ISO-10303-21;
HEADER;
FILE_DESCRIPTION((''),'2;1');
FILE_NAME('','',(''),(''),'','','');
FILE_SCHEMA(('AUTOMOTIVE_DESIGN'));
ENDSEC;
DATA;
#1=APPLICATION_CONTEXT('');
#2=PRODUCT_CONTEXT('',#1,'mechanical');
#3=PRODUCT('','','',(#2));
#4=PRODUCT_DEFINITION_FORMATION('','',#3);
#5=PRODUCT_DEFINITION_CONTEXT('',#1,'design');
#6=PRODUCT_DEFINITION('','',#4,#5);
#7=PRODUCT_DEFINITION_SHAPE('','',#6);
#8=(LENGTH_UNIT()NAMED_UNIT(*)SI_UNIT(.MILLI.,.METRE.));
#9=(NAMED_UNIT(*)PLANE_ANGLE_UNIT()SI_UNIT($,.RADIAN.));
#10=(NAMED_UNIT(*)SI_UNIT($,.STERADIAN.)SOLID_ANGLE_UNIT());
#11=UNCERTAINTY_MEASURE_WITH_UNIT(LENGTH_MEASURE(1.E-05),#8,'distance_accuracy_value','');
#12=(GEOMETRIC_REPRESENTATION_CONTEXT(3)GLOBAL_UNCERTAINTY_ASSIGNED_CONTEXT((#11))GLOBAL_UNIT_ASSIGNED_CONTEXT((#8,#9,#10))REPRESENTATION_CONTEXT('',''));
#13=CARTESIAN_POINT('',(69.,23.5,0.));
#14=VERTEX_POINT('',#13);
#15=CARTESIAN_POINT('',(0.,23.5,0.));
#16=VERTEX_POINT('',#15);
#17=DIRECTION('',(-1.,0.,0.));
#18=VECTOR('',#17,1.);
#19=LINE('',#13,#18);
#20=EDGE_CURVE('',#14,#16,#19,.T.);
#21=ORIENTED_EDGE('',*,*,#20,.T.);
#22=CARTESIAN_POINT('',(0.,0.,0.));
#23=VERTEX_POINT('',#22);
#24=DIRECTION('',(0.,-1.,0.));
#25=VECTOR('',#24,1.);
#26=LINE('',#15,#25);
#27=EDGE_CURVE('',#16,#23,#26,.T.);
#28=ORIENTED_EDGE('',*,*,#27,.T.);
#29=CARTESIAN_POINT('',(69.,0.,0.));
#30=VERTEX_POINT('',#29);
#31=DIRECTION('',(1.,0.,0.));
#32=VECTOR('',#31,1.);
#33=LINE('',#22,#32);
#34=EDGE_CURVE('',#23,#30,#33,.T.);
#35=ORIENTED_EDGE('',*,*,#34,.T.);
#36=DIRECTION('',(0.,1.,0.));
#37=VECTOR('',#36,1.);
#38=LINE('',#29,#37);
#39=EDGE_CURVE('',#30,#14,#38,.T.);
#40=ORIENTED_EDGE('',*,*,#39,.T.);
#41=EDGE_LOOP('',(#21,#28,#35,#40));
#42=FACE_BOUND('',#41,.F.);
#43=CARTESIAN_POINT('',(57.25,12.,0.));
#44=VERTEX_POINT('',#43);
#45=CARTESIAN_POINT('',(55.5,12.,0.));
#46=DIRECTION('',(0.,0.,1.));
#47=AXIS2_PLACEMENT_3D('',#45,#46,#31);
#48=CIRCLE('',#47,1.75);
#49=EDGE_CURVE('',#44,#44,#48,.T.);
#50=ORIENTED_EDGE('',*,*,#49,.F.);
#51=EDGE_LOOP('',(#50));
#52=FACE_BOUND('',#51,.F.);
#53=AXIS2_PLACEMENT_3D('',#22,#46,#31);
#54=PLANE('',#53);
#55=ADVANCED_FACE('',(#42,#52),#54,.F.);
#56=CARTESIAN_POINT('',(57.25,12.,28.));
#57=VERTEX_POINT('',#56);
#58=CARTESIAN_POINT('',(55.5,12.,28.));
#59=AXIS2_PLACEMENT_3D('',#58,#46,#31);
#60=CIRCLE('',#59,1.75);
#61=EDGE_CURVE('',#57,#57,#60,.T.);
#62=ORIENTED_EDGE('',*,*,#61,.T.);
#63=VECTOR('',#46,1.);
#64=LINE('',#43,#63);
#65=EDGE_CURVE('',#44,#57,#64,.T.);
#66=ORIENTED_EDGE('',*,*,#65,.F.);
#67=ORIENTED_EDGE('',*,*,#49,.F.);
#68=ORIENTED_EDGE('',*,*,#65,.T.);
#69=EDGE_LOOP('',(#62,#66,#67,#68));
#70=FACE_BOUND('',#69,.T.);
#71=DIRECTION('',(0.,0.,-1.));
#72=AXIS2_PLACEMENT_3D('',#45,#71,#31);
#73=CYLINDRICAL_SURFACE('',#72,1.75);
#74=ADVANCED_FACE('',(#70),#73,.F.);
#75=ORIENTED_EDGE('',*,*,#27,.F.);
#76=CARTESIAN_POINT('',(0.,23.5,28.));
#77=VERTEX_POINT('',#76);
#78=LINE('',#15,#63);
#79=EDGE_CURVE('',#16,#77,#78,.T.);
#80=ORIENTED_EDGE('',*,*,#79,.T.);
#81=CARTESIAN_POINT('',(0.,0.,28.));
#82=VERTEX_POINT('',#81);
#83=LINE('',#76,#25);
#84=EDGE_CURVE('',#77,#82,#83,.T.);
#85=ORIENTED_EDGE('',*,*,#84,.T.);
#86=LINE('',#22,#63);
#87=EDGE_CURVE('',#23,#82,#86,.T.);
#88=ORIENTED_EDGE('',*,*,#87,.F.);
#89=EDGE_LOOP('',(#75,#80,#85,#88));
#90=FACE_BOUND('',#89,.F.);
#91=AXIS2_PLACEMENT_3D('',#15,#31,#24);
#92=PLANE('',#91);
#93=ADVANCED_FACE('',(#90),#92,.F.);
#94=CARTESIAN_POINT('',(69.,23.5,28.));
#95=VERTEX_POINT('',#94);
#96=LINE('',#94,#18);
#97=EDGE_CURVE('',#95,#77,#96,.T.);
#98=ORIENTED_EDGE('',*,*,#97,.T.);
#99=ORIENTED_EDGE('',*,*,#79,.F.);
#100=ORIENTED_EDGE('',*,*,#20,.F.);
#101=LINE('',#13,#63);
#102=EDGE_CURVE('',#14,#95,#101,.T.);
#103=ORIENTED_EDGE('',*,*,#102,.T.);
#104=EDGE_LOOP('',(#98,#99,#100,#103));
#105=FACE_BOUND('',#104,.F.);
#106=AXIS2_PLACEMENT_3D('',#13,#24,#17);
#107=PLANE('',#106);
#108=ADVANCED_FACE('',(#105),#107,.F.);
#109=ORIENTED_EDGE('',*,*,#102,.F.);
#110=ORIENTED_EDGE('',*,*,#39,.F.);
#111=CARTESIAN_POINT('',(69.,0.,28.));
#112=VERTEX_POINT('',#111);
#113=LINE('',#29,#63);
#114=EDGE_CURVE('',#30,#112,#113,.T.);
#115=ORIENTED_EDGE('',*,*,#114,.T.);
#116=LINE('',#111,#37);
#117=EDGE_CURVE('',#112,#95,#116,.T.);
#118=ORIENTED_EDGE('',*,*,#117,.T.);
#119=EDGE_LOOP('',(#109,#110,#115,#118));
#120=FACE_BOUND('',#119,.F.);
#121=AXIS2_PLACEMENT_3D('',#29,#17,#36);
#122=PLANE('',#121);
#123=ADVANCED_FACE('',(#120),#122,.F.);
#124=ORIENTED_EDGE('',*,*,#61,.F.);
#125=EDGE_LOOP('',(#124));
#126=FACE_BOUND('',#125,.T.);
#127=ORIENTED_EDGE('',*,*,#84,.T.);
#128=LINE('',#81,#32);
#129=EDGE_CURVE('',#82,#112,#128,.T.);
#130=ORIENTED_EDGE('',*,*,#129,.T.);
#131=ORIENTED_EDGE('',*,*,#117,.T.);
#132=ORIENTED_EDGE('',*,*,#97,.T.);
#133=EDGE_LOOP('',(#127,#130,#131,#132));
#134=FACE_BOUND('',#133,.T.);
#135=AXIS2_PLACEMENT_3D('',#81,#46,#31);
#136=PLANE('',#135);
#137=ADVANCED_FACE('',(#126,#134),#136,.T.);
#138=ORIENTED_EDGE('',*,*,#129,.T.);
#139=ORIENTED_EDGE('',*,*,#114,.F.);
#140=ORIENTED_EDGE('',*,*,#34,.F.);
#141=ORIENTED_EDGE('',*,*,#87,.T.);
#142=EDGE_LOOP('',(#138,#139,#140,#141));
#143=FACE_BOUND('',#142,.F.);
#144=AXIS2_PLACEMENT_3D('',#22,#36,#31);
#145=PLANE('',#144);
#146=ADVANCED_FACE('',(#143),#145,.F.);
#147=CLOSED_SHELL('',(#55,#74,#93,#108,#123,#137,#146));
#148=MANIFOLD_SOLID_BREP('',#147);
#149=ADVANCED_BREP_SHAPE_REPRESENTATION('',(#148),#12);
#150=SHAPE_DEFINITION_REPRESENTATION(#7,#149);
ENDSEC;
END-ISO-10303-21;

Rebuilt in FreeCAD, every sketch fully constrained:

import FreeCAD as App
import Part
import Sketcher

V = App.Vector
Q = App.Units.Quantity

doc = App.newDocument("Part")
body = doc.addObject("PartDesign::Body", "Body")

# Sketch on XY plane
sketch1 = body.newObject("Sketcher::SketchObject", "Sketch")
sketch1.AttachmentSupport = (doc.getObject("XY_Plane"), [""])
sketch1.MapMode = "FlatFace"
sketch1.addGeometry(Part.LineSegment(V(0, 23.5, 0), V(0, 0, 0)), False)
sketch1.addGeometry(Part.LineSegment(V(0, 0, 0), V(69, 0, 0)), False)
sketch1.addGeometry(Part.LineSegment(V(69, 0, 0), V(69, 23.5, 0)), False)
sketch1.addGeometry(Part.LineSegment(V(69, 23.5, 0), V(0, 23.5, 0)), False)
sketch1.addGeometry(Part.Circle(V(55.5, 12, 0), V(0, 0, 1), 1.8), False)
sketch1.addConstraint(Sketcher.Constraint("Coincident", 0, 2, 1, 1))
sketch1.addConstraint(Sketcher.Constraint("Coincident", 1, 2, 2, 1))
sketch1.addConstraint(Sketcher.Constraint("Coincident", 2, 2, 3, 1))
sketch1.addConstraint(Sketcher.Constraint("Coincident", 3, 2, 0, 1))
sketch1.addConstraint(Sketcher.Constraint("Vertical", 0))
sketch1.addConstraint(Sketcher.Constraint("Horizontal", 1))
sketch1.addConstraint(Sketcher.Constraint("Vertical", 2))
sketch1.addConstraint(Sketcher.Constraint("Horizontal", 3))
sketch1.addConstraint(Sketcher.Constraint("Coincident", 0, 2, -1, 1))
sketch1.addConstraint(Sketcher.Constraint("Diameter", 4, Q("3.5 mm")))
sketch1.addConstraint(Sketcher.Constraint("DistanceX", 1, 1, 1, 2, Q("69 mm")))
sketch1.addConstraint(Sketcher.Constraint("DistanceY", 0, 2, 0, 1, Q("23.5 mm")))
sketch1.addConstraint(Sketcher.Constraint("DistanceY", -1, 1, 4, 3, Q("12 mm")))
sketch1.addConstraint(Sketcher.Constraint("DistanceX", 4, 3, 1, 2, Q("13.5 mm")))
pad1 = body.newObject("PartDesign::Pad", "Pad")
pad1.Profile = sketch1
pad1.Length = 28

doc.recompute()
